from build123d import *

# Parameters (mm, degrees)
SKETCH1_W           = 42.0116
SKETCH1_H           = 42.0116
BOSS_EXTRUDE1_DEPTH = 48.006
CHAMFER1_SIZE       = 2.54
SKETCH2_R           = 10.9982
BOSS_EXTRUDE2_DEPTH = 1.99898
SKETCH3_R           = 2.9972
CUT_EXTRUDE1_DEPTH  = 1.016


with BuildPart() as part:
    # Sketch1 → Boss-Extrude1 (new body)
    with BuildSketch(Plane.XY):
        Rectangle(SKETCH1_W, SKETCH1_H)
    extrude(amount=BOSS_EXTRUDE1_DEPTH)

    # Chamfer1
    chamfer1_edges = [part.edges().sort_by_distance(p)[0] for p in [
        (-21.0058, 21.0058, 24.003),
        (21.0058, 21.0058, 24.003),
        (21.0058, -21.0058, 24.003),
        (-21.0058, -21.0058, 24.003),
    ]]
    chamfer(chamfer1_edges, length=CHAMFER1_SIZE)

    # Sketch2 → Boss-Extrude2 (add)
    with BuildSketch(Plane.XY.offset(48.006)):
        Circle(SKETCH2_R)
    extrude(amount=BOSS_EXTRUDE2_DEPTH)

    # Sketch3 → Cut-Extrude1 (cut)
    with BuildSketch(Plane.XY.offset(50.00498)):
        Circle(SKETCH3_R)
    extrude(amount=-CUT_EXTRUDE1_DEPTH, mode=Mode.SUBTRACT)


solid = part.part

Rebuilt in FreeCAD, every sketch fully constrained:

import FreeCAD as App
import Part
import Sketcher

V = App.Vector
Q = App.Units.Quantity


def edges_at(feature, points):
    """Names of the edges that pass closest to the given points."""
    edges = feature.Shape.Edges
    near = lambda p: min(range(len(edges)), key=lambda i: edges[i].distToShape(Part.Vertex(*p))[0])
    return sorted({f"Edge{near(p) + 1}" for p in points})

doc = App.newDocument("Part")
body = doc.addObject("PartDesign::Body", "Body")

# Sketch on XY plane
sketch1 = body.newObject("Sketcher::SketchObject", "Sketch")
sketch1.AttachmentSupport = (doc.getObject("XY_Plane"), [""])
sketch1.MapMode = "FlatFace"
sketch1.addGeometry(Part.LineSegment(V(-21.0058, 21.0058, 0), V(-21.0058, -21.0058, 0)), False)
sketch1.addGeometry(Part.LineSegment(V(-21.0058, -21.0058, 0), V(21.0058, -21.0058, 0)), False)
sketch1.addGeometry(Part.LineSegment(V(21.0058, -21.0058, 0), V(21.0058, 21.0058, 0)), False)
sketch1.addGeometry(Part.LineSegment(V(21.0058, 21.0058, 0), V(-21.0058, 21.0058, 0)), False)
sketch1.addConstraint(Sketcher.Constraint("Coincident", 0, 2, 1, 1))
sketch1.addConstraint(Sketcher.Constraint("Coincident", 1, 2, 2, 1))
sketch1.addConstraint(Sketcher.Constraint("Coincident", 2, 2, 3, 1))
sketch1.addConstraint(Sketcher.Constraint("Coincident", 3, 2, 0, 1))
sketch1.addConstraint(Sketcher.Constraint("Vertical", 0))
sketch1.addConstraint(Sketcher.Constraint("Horizontal", 1))
sketch1.addConstraint(Sketcher.Constraint("Vertical", 2))
sketch1.addConstraint(Sketcher.Constraint("Horizontal", 3))
sketch1.addConstraint(Sketcher.Constraint("Symmetric", 0, 2, 2, 2, -1, 1))
sketch1.addConstraint(Sketcher.Constraint("Equal", 3, 0))
sketch1.addConstraint(Sketcher.Constraint("DistanceX", 1, 1, 1, 2, Q("1.654 in")))
pad1 = body.newObject("PartDesign::Pad", "Pad")
pad1.Profile = sketch1
pad1.Length = Q("1.89 in")
doc.recompute()

chamfer = body.newObject("PartDesign::Chamfer", "Chamfer")
chamfer.Base = (pad1, edges_at(pad1, [
    (-21.006, 21.006, 24.003),
    (21.006, 21.006, 24.003),
    (21.006, -21.006, 24.003),
    (-21.006, -21.006, 24.003),
]))
chamfer.Size = Q("0.1 in")

# Sketch on XY plane
sketch2 = body.newObject("Sketcher::SketchObject", "Sketch001")
sketch2.AttachmentSupport = (doc.getObject("XY_Plane"), [""])
sketch2.MapMode = "FlatFace"
sketch2.AttachmentOffset = App.Placement(V(0, 0, 1.89 * 25.4), App.Rotation())
sketch2.addGeometry(Part.Circle(V(0, 0, 0), V(0, 0, 1), 10.9982), False)
sketch2.addConstraint(Sketcher.Constraint("Coincident", 0, 3, -1, 1))
sketch2.addConstraint(Sketcher.Constraint("Diameter", 0, Q("0.866 in")))
pad2 = body.newObject("PartDesign::Pad", "Pad001")
pad2.Profile = sketch2
pad2.Length = Q("0.0787 in")

# Sketch on XY plane
sketch3 = body.newObject("Sketcher::SketchObject", "Sketch002")
sketch3.AttachmentSupport = (doc.getObject("XY_Plane"), [""])
sketch3.MapMode = "FlatFace"
sketch3.AttachmentOffset = App.Placement(V(0, 0, 1.9687 * 25.4), App.Rotation())
sketch3.addGeometry(Part.Circle(V(0, 0, 0), V(0, 0, 1), 2.9972), False)
sketch3.addConstraint(Sketcher.Constraint("Coincident", 0, 3, -1, 1))
sketch3.addConstraint(Sketcher.Constraint("Diameter", 0, Q("0.236 in")))
pocket1 = body.newObject("PartDesign::Pocket", "Pocket")
pocket1.Profile = sketch3
pocket1.Length = Q("0.04 in")

doc.recompute()
